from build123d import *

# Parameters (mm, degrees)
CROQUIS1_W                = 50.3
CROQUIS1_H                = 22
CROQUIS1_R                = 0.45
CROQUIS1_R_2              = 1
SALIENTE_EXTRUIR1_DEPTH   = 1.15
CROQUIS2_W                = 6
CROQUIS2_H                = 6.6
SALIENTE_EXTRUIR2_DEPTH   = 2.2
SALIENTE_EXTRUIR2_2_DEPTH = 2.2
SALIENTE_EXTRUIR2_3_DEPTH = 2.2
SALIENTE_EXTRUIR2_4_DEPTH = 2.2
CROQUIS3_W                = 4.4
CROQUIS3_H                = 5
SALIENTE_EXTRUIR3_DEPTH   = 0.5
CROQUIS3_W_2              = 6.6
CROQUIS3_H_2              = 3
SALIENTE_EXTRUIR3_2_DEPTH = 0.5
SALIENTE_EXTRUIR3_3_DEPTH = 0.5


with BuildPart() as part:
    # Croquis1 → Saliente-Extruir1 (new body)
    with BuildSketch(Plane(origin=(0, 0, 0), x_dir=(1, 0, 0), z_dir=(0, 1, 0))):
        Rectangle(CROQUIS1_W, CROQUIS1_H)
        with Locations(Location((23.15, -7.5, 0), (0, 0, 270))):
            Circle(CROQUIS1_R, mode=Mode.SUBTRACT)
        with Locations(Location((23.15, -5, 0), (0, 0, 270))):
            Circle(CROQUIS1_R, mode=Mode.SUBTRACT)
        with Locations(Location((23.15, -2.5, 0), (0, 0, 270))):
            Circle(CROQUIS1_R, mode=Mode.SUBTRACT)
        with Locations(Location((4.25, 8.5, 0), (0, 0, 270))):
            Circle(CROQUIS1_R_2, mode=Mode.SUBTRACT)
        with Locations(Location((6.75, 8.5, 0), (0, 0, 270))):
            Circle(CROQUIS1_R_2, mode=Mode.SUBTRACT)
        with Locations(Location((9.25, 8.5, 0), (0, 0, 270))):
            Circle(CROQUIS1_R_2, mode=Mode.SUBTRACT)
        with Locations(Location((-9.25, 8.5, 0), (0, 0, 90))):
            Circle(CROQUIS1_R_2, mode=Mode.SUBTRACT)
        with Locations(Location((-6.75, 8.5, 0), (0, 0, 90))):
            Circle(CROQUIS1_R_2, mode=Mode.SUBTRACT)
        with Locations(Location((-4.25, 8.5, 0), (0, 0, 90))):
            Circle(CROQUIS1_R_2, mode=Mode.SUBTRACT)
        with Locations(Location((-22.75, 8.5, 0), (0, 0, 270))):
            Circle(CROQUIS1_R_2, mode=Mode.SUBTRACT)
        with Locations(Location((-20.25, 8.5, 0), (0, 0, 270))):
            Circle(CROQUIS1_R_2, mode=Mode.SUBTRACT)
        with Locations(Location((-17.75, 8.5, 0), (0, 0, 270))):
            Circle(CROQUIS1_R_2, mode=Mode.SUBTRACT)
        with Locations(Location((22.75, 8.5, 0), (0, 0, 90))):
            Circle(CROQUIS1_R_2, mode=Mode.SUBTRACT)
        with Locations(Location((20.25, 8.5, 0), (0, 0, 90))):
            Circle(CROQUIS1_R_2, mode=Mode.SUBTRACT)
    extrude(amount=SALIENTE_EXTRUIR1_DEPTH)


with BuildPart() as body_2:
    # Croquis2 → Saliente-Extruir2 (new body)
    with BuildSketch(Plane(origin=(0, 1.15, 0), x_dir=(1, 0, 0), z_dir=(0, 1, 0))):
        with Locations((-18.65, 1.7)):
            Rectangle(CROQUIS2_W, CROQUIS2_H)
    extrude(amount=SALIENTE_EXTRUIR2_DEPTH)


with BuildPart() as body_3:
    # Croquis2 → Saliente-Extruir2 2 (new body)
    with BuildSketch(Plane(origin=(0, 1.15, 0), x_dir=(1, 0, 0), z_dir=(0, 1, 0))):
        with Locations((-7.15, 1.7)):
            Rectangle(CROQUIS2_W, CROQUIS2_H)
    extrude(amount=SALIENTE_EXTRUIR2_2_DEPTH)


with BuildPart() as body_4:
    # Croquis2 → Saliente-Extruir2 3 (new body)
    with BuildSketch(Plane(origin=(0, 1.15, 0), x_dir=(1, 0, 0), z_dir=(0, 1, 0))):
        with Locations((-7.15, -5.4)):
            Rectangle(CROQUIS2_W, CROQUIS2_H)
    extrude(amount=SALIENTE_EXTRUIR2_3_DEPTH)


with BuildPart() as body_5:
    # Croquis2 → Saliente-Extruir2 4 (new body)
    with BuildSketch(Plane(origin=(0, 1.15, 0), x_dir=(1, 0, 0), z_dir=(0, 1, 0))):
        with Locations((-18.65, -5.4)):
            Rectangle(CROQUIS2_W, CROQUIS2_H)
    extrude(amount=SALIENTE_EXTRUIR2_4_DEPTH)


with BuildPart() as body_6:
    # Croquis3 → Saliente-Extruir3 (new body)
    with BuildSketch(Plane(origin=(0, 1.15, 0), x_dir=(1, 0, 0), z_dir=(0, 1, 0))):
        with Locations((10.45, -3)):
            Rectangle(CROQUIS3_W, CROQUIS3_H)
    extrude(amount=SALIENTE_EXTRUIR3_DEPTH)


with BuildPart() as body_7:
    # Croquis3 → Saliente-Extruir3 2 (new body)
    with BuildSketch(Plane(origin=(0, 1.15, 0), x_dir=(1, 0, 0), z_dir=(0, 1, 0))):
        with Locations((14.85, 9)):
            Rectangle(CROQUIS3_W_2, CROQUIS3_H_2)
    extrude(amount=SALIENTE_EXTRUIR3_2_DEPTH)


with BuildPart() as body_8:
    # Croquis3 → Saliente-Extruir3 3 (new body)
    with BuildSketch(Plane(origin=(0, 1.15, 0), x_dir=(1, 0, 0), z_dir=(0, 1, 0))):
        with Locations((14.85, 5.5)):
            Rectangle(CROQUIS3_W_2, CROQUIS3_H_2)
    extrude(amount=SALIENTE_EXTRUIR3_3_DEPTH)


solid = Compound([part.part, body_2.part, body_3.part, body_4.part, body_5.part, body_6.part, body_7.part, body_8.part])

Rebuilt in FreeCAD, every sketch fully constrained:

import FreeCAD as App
import Part
import Sketcher

V = App.Vector

doc = App.newDocument("Part")
body = doc.addObject("PartDesign::Body", "Body")

sketch1 = body.newObject("Sketcher::SketchObject", "Sketch")
sketch1.AttachmentSupport = (doc.getObject("XZ_Plane"), [""])
sketch1.MapMode = "FlatFace"
sketch1.addGeometry(Part.LineSegment(V(-25.15, -11, 0), V(-25.15, 11, 0)), False)
sketch1.addGeometry(Part.LineSegment(V(-25.15, 11, 0), V(25.15, 11, 0)), False)
sketch1.addGeometry(Part.LineSegment(V(25.15, 11, 0), V(25.15, -11, 0)), False)
sketch1.addGeometry(Part.LineSegment(V(25.15, -11, 0), V(-25.15, -11, 0)), False)
sketch1.addGeometry(Part.Circle(V(23.15, 7.5, 0), V(0, 0, 1), 0.45), False)
sketch1.addGeometry(Part.Circle(V(23.15, 5, 0), V(0, 0, 1), 0.45), False)
sketch1.addGeometry(Part.Circle(V(23.15, 2.5, 0), V(0, 0, 1), 0.45), False)
sketch1.addGeometry(Part.Circle(V(-22.75, -8.5, 0), V(0, 0, 1), 1), False)
sketch1.addGeometry(Part.Circle(V(-20.25, -8.5, 0), V(0, 0, 1), 1), False)
sketch1.addGeometry(Part.Circle(V(-17.75, -8.5, 0), V(0, 0, 1), 1), False)
sketch1.addGeometry(Part.Circle(V(-9.25, -8.5, 0), V(0, 0, 1), 1), False)
sketch1.addGeometry(Part.Circle(V(-6.75, -8.5, 0), V(0, 0, 1), 1), False)
sketch1.addGeometry(Part.Circle(V(-4.25, -8.5, 0), V(0, 0, 1), 1), False)
sketch1.addGeometry(Part.Circle(V(4.25, -8.5, 0), V(0, 0, 1), 1), False)
sketch1.addGeometry(Part.Circle(V(6.75, -8.5, 0), V(0, 0, 1), 1), False)
sketch1.addGeometry(Part.Circle(V(9.25, -8.5, 0), V(0, 0, 1), 1), False)
sketch1.addGeometry(Part.Circle(V(20.25, -8.5, 0), V(0, 0, 1), 1), False)
sketch1.addGeometry(Part.Circle(V(22.75, -8.5, 0), V(0, 0, 1), 1), False)
sketch1.addConstraint(Sketcher.Constraint("Coincident", 0, 2, 1, 1))
sketch1.addConstraint(Sketcher.Constraint("Coincident", 1, 2, 2, 1))
sketch1.addConstraint(Sketcher.Constraint("Coincident", 2, 2, 3, 1))
sketch1.addConstraint(Sketcher.Constraint("Coincident", 3, 2, 0, 1))
sketch1.addConstraint(Sketcher.Constraint("Vertical", 0))
sketch1.addConstraint(Sketcher.Constraint("Horizontal", 1))
sketch1.addConstraint(Sketcher.Constraint("Vertical", 2))
sketch1.addConstraint(Sketcher.Constraint("Horizontal", 3))
sketch1.addConstraint(Sketcher.Constraint("Equal", 4, 5))
sketch1.addConstraint(Sketcher.Constraint("Equal", 5, 6))
sketch1.addConstraint(Sketcher.Constraint("Equal", 7, 8))
sketch1.addConstraint(Sketcher.Constraint("Equal", 8, 9))
sketch1.addConstraint(Sketcher.Constraint("Equal", 9, 10))
sketch1.addConstraint(Sketcher.Constraint("Equal", 10, 11))
sketch1.addConstraint(Sketcher.Constraint("Equal", 11, 12))
sketch1.addConstraint(Sketcher.Constraint("Equal", 12, 13))
sketch1.addConstraint(Sketcher.Constraint("Equal", 13, 14))
sketch1.addConstraint(Sketcher.Constraint("Equal", 14, 15))
sketch1.addConstraint(Sketcher.Constraint("Equal", 15, 16))
sketch1.addConstraint(Sketcher.Constraint("Equal", 16, 17))
sketch1.addConstraint(Sketcher.Constraint("Symmetric", 0, 2, 2, 2, -1, 1))
sketch1.addConstraint(Sketcher.Constraint("Symmetric", 12, 3, 13, 3, -2))
sketch1.addConstraint(Sketcher.Constraint("Symmetric", 11, 3, 14, 3, -2))
sketch1.addConstraint(Sketcher.Constraint("Symmetric", 10, 3, 15, 3, -2))
sketch1.addConstraint(Sketcher.Constraint("Symmetric", 8, 3, 16, 3, -2))
sketch1.addConstraint(Sketcher.Constraint("Symmetric", 7, 3, 17, 3, -2))
sketch1.addConstraint(Sketcher.Constraint("Horizontal", 7, 3, 8, 3))
sketch1.addConstraint(Sketcher.Constraint("Horizontal", 8, 3, 9, 3))
sketch1.addConstraint(Sketcher.Constraint("Horizontal", 9, 3, 10, 3))
sketch1.addConstraint(Sketcher.Constraint("Horizontal", 10, 3, 11, 3))
sketch1.addConstraint(Sketcher.Constraint("Horizontal", 11, 3, 12, 3))
sketch1.addConstraint(Sketcher.Constraint("Vertical", 4, 3, 5, 3))
sketch1.addConstraint(Sketcher.Constraint("Vertical", 5, 3, 6, 3))
sketch1.addConstraint(Sketcher.Constraint("Diameter", 7, 2.0))
sketch1.addConstraint(Sketcher.Constraint("Diameter", 4, 0.9))
sketch1.addConstraint(Sketcher.Constraint("DistanceY", 0, 1, 0, 2, 22.0))
sketch1.addConstraint(Sketcher.Constraint("DistanceX", 1, 1, 1, 2, 50.3))
sketch1.addConstraint(Sketcher.Constraint("DistanceY", -1, 1, 5, 3, 5.0))
sketch1.addConstraint(Sketcher.Constraint("DistanceY", 6, 3, 4, 3, 5.0))
sketch1.addConstraint(Sketcher.Constraint("DistanceY", 7, 3, 6, 3, 11.0))
sketch1.addConstraint(Sketcher.Constraint("DistanceX", 7, 3, 9, 3, 5.0))
sketch1.addConstraint(Sketcher.Constraint("DistanceX", 8, 3, 10, 3, 11.0))
sketch1.addConstraint(Sketcher.Constraint("DistanceX", 9, 3, 11, 3, 11.0))
sketch1.addConstraint(Sketcher.Constraint("DistanceX", 10, 3, 12, 3, 5.0))
sketch1.addConstraint(Sketcher.Constraint("DistanceX", 11, 3, 13, 3, 11.0))
sketch1.addConstraint(Sketcher.Constraint("DistanceX", 4, 3, 1, 2, 2.0))
sketch1.addConstraint(Sketcher.Constraint("DistanceY", -1, 1, 4, 3, 7.5))
sketch1.addConstraint(Sketcher.Constraint("DistanceX", 7, 3, 6, 3, 45.9))
pad1 = body.newObject("PartDesign::Pad", "Pad")
pad1.Profile = sketch1
pad1.Length = 1.15
pad1.Reversed = True
body2 = doc.addObject("PartDesign::Body", "Body001")

sketch2 = body2.newObject("Sketcher::SketchObject", "Sketch001")
sketch2.AttachmentSupport = (doc.getObject("XZ_Plane001"), [""])
sketch2.MapMode = "FlatFace"
sketch2.AttachmentOffset = App.Placement(V(0, 0, -1.15), App.Rotation())
sketch2.addGeometry(Part.LineSegment(V(-22, -5, 0), V(-22, 2, 0)), False)
sketch2.addGeometry(Part.LineSegment(V(-22, 2, 0), V(-16, 2, 0)), False)
sketch2.addGeometry(Part.LineSegment(V(-16, 2, 0), V(-16, -5, 0)), False)
sketch2.addGeometry(Part.LineSegment(V(-16, -5, 0), V(-22, -5, 0)), False)
sketch2.addConstraint(Sketcher.Constraint("Coincident", 0, 2, 1, 1))
sketch2.addConstraint(Sketcher.Constraint("Coincident", 1, 2, 2, 1))
sketch2.addConstraint(Sketcher.Constraint("Coincident", 2, 2, 3, 1))
sketch2.addConstraint(Sketcher.Constraint("Coincident", 3, 2, 0, 1))
sketch2.addConstraint(Sketcher.Constraint("Vertical", 0))
sketch2.addConstraint(Sketcher.Constraint("Horizontal", 1))
sketch2.addConstraint(Sketcher.Constraint("Vertical", 2))
sketch2.addConstraint(Sketcher.Constraint("Horizontal", 3))
sketch2.addConstraint(Sketcher.Constraint("DistanceX", 1, 1, 1, 2, 6.0))
sketch2.addConstraint(Sketcher.Constraint("DistanceY", 0, 1, 0, 2, 6.6))
sketch2.addConstraint(Sketcher.Constraint("DistanceY", 2, 2, -1, 1, 5.0))
sketch2.addConstraint(Sketcher.Constraint("DistanceX", 0, 2, -1, 1, 21.65))
pad2 = body2.newObject("PartDesign::Pad", "Pad001")
pad2.Profile = sketch2
pad2.Length = 2.2
pad2.Reversed = True
body3 = doc.addObject("PartDesign::Body", "Body002")

sketch3 = body3.newObject("Sketcher::SketchObject", "Sketch002")
sketch3.AttachmentSupport = (doc.getObject("XZ_Plane002"), [""])
sketch3.MapMode = "FlatFace"
sketch3.AttachmentOffset = App.Placement(V(0, 0, -1.15), App.Rotation())
sketch3.addGeometry(Part.LineSegment(V(-10, -5, 0), V(-10, 2, 0)), False)
sketch3.addGeometry(Part.LineSegment(V(-10, 2, 0), V(-4, 2, 0)), False)
sketch3.addGeometry(Part.LineSegment(V(-4, 2, 0), V(-4, -5, 0)), False)
sketch3.addGeometry(Part.LineSegment(V(-4, -5, 0), V(-10, -5, 0)), False)
sketch3.addConstraint(Sketcher.Constraint("Coincident", 0, 2, 1, 1))
sketch3.addConstraint(Sketcher.Constraint("Coincident", 1, 2, 2, 1))
sketch3.addConstraint(Sketcher.Constraint("Coincident", 2, 2, 3, 1))
sketch3.addConstraint(Sketcher.Constraint("Coincident", 3, 2, 0, 1))
sketch3.addConstraint(Sketcher.Constraint("Vertical", 0))
sketch3.addConstraint(Sketcher.Constraint("Horizontal", 1))
sketch3.addConstraint(Sketcher.Constraint("Vertical", 2))
sketch3.addConstraint(Sketcher.Constraint("Horizontal", 3))
sketch3.addConstraint(Sketcher.Constraint("DistanceX", 1, 1, 1, 2, 6.0))
sketch3.addConstraint(Sketcher.Constraint("DistanceY", 0, 1, 0, 2, 6.6))
sketch3.addConstraint(Sketcher.Constraint("DistanceY", 2, 2, -1, 1, 5.0))
sketch3.addConstraint(Sketcher.Constraint("DistanceX", 0, 2, -1, 1, 10.15))
pad3 = body3.newObject("PartDesign::Pad", "Pad002")
pad3.Profile = sketch3
pad3.Length = 2.2
pad3.Reversed = True
body4 = doc.addObject("PartDesign::Body", "Body003")

sketch4 = body4.newObject("Sketcher::SketchObject", "Sketch003")
sketch4.AttachmentSupport = (doc.getObject("XZ_Plane003"), [""])
sketch4.MapMode = "FlatFace"
sketch4.AttachmentOffset = App.Placement(V(0, 0, -1.15), App.Rotation())
sketch4.addGeometry(Part.LineSegment(V(-10, 2, 0), V(-10, 9, 0)), False)
sketch4.addGeometry(Part.LineSegment(V(-10, 9, 0), V(-4, 9, 0)), False)
sketch4.addGeometry(Part.LineSegment(V(-4, 9, 0), V(-4, 2, 0)), False)
sketch4.addGeometry(Part.LineSegment(V(-4, 2, 0), V(-10, 2, 0)), False)
sketch4.addConstraint(Sketcher.Constraint("Coincident", 0, 2, 1, 1))
sketch4.addConstraint(Sketcher.Constraint("Coincident", 1, 2, 2, 1))
sketch4.addConstraint(Sketcher.Constraint("Coincident", 2, 2, 3, 1))
sketch4.addConstraint(Sketcher.Constraint("Coincident", 3, 2, 0, 1))
sketch4.addConstraint(Sketcher.Constraint("Vertical", 0))
sketch4.addConstraint(Sketcher.Constraint("Horizontal", 1))
sketch4.addConstraint(Sketcher.Constraint("Vertical", 2))
sketch4.addConstraint(Sketcher.Constraint("Horizontal", 3))
sketch4.addConstraint(Sketcher.Constraint("DistanceX", 1, 1, 1, 2, 6.0))
sketch4.addConstraint(Sketcher.Constraint("DistanceY", 0, 1, 0, 2, 6.6))
sketch4.addConstraint(Sketcher.Constraint("DistanceY", -1, 1, 0, 2, 8.7))
sketch4.addConstraint(Sketcher.Constraint("DistanceX", 0, 2, -1, 1, 10.15))
pad4 = body4.newObject("PartDesign::Pad", "Pad003")
pad4.Profile = sketch4
pad4.Length = 2.2
pad4.Reversed = True
body5 = doc.addObject("PartDesign::Body", "Body004")

sketch5 = body5.newObject("Sketcher::SketchObject", "Sketch004")
sketch5.AttachmentSupport = (doc.getObject("XZ_Plane004"), [""])
sketch5.MapMode = "FlatFace"
sketch5.AttachmentOffset = App.Placement(V(0, 0, -1.15), App.Rotation())
sketch5.addGeometry(Part.LineSegment(V(-22, 2, 0), V(-22, 9, 0)), False)
sketch5.addGeometry(Part.LineSegment(V(-22, 9, 0), V(-16, 9, 0)), False)
sketch5.addGeometry(Part.LineSegment(V(-16, 9, 0), V(-16, 2, 0)), False)
sketch5.addGeometry(Part.LineSegment(V(-16, 2, 0), V(-22, 2, 0)), False)
sketch5.addConstraint(Sketcher.Constraint("Coincident", 0, 2, 1, 1))
sketch5.addConstraint(Sketcher.Constraint("Coincident", 1, 2, 2, 1))
sketch5.addConstraint(Sketcher.Constraint("Coincident", 2, 2, 3, 1))
sketch5.addConstraint(Sketcher.Constraint("Coincident", 3, 2, 0, 1))
sketch5.addConstraint(Sketcher.Constraint("Vertical", 0))
sketch5.addConstraint(Sketcher.Constraint("Horizontal", 1))
sketch5.addConstraint(Sketcher.Constraint("Vertical", 2))
sketch5.addConstraint(Sketcher.Constraint("Horizontal", 3))
sketch5.addConstraint(Sketcher.Constraint("DistanceX", 1, 1, 1, 2, 6.0))
sketch5.addConstraint(Sketcher.Constraint("DistanceY", 0, 1, 0, 2, 6.6))
sketch5.addConstraint(Sketcher.Constraint("DistanceY", -1, 1, 0, 2, 8.7))
sketch5.addConstraint(Sketcher.Constraint("DistanceX", 0, 2, -1, 1, 21.65))
pad5 = body5.newObject("PartDesign::Pad", "Pad004")
pad5.Profile = sketch5
pad5.Length = 2.2
pad5.Reversed = True
body6 = doc.addObject("PartDesign::Body", "Body005")

sketch6 = body6.newObject("Sketcher::SketchObject", "Sketch005")
sketch6.AttachmentSupport = (doc.getObject("XZ_Plane005"), [""])
sketch6.MapMode = "FlatFace"
sketch6.AttachmentOffset = App.Placement(V(0, 0, -1.15), App.Rotation())
sketch6.addGeometry(Part.LineSegment(V(8.2, 0.5, 0), V(8.2, 5.5, 0)), False)
sketch6.addGeometry(Part.LineSegment(V(8.2, 5.5, 0), V(12.7, 5.5, 0)), False)
sketch6.addGeometry(Part.LineSegment(V(12.7, 5.5, 0), V(12.7, 0.5, 0)), False)
sketch6.addGeometry(Part.LineSegment(V(12.7, 0.5, 0), V(8.2, 0.5, 0)), False)
sketch6.addConstraint(Sketcher.Constraint("Coincident", 0, 2, 1, 1))
sketch6.addConstraint(Sketcher.Constraint("Coincident", 1, 2, 2, 1))
sketch6.addConstraint(Sketcher.Constraint("Coincident", 2, 2, 3, 1))
sketch6.addConstraint(Sketcher.Constraint("Coincident", 3, 2, 0, 1))
sketch6.addConstraint(Sketcher.Constraint("Vertical", 0))
sketch6.addConstraint(Sketcher.Constraint("Horizontal", 1))
sketch6.addConstraint(Sketcher.Constraint("Vertical", 2))
sketch6.addConstraint(Sketcher.Constraint("Horizontal", 3))
sketch6.addConstraint(Sketcher.Constraint("DistanceY", 0, 1, 0, 2, 5.0))
sketch6.addConstraint(Sketcher.Constraint("DistanceX", 1, 1, 1, 2, 4.4))
sketch6.addConstraint(Sketcher.Constraint("DistanceY", -1, 1, 0, 2, 5.5))
sketch6.addConstraint(Sketcher.Constraint("DistanceX", -1, 1, 0, 2, 8.25))
pad6 = body6.newObject("PartDesign::Pad", "Pad005")
pad6.Profile = sketch6
pad6.Length = 0.5
pad6.Reversed = True
body7 = doc.addObject("PartDesign::Body", "Body006")

sketch7 = body7.newObject("Sketcher::SketchObject", "Sketch006")
sketch7.AttachmentSupport = (doc.getObject("XZ_Plane006"), [""])
sketch7.MapMode = "FlatFace"
sketch7.AttachmentOffset = App.Placement(V(0, 0, -1.15), App.Rotation())
sketch7.addGeometry(Part.LineSegment(V(11.6, -10.5, 0), V(11.6, -7.5, 0)), False)
sketch7.addGeometry(Part.LineSegment(V(11.6, -7.5, 0), V(18.1, -7.5, 0)), False)
sketch7.addGeometry(Part.LineSegment(V(18.1, -7.5, 0), V(18.1, -10.5, 0)), False)
sketch7.addGeometry(Part.LineSegment(V(18.1, -10.5, 0), V(11.6, -10.5, 0)), False)
sketch7.addConstraint(Sketcher.Constraint("Coincident", 0, 2, 1, 1))
sketch7.addConstraint(Sketcher.Constraint("Coincident", 1, 2, 2, 1))
sketch7.addConstraint(Sketcher.Constraint("Coincident", 2, 2, 3, 1))
sketch7.addConstraint(Sketcher.Constraint("Coincident", 3, 2, 0, 1))
sketch7.addConstraint(Sketcher.Constraint("Vertical", 0))
sketch7.addConstraint(Sketcher.Constraint("Horizontal", 1))
sketch7.addConstraint(Sketcher.Constraint("Vertical", 2))
sketch7.addConstraint(Sketcher.Constraint("Horizontal", 3))
sketch7.addConstraint(Sketcher.Constraint("DistanceY", 0, 1, 0, 2, 3.0))
sketch7.addConstraint(Sketcher.Constraint("DistanceX", 1, 1, 1, 2, 6.6))
sketch7.addConstraint(Sketcher.Constraint("DistanceY", 0, 2, -1, 1, 7.5))
sketch7.addConstraint(Sketcher.Constraint("DistanceX", -1, 1, 0, 2, 11.55))
pad7 = body7.newObject("PartDesign::Pad", "Pad006")
pad7.Profile = sketch7
pad7.Length = 0.5
pad7.Reversed = True
body8 = doc.addObject("PartDesign::Body", "Body007")

sketch8 = body8.newObject("Sketcher::SketchObject", "Sketch007")
sketch8.AttachmentSupport = (doc.getObject("XZ_Plane007"), [""])
sketch8.MapMode = "FlatFace"
sketch8.AttachmentOffset = App.Placement(V(0, 0, -1.15), App.Rotation())
sketch8.addGeometry(Part.LineSegment(V(11.6, -7, 0), V(11.6, -4, 0)), False)
sketch8.addGeometry(Part.LineSegment(V(11.6, -4, 0), V(18.1, -4, 0)), False)
sketch8.addGeometry(Part.LineSegment(V(18.1, -4, 0), V(18.1, -7, 0)), False)
sketch8.addGeometry(Part.LineSegment(V(18.1, -7, 0), V(11.6, -7, 0)), False)
sketch8.addConstraint(Sketcher.Constraint("Coincident", 0, 2, 1, 1))
sketch8.addConstraint(Sketcher.Constraint("Coincident", 1, 2, 2, 1))
sketch8.addConstraint(Sketcher.Constraint("Coincident", 2, 2, 3, 1))
sketch8.addConstraint(Sketcher.Constraint("Coincident", 3, 2, 0, 1))
sketch8.addConstraint(Sketcher.Constraint("Vertical", 0))
sketch8.addConstraint(Sketcher.Constraint("Horizontal", 1))
sketch8.addConstraint(Sketcher.Constraint("Vertical", 2))
sketch8.addConstraint(Sketcher.Constraint("Horizontal", 3))
sketch8.addConstraint(Sketcher.Constraint("DistanceY", 0, 1, 0, 2, 3.0))
sketch8.addConstraint(Sketcher.Constraint("DistanceX", 1, 1, 1, 2, 6.6))
sketch8.addConstraint(Sketcher.Constraint("DistanceY", 0, 2, -1, 1, 4.0))
sketch8.addConstraint(Sketcher.Constraint("DistanceX", -1, 1, 0, 2, 11.55))
pad8 = body8.newObject("PartDesign::Pad", "Pad007")
pad8.Profile = sketch8
pad8.Length = 0.5
pad8.Reversed = True

doc.recompute()
